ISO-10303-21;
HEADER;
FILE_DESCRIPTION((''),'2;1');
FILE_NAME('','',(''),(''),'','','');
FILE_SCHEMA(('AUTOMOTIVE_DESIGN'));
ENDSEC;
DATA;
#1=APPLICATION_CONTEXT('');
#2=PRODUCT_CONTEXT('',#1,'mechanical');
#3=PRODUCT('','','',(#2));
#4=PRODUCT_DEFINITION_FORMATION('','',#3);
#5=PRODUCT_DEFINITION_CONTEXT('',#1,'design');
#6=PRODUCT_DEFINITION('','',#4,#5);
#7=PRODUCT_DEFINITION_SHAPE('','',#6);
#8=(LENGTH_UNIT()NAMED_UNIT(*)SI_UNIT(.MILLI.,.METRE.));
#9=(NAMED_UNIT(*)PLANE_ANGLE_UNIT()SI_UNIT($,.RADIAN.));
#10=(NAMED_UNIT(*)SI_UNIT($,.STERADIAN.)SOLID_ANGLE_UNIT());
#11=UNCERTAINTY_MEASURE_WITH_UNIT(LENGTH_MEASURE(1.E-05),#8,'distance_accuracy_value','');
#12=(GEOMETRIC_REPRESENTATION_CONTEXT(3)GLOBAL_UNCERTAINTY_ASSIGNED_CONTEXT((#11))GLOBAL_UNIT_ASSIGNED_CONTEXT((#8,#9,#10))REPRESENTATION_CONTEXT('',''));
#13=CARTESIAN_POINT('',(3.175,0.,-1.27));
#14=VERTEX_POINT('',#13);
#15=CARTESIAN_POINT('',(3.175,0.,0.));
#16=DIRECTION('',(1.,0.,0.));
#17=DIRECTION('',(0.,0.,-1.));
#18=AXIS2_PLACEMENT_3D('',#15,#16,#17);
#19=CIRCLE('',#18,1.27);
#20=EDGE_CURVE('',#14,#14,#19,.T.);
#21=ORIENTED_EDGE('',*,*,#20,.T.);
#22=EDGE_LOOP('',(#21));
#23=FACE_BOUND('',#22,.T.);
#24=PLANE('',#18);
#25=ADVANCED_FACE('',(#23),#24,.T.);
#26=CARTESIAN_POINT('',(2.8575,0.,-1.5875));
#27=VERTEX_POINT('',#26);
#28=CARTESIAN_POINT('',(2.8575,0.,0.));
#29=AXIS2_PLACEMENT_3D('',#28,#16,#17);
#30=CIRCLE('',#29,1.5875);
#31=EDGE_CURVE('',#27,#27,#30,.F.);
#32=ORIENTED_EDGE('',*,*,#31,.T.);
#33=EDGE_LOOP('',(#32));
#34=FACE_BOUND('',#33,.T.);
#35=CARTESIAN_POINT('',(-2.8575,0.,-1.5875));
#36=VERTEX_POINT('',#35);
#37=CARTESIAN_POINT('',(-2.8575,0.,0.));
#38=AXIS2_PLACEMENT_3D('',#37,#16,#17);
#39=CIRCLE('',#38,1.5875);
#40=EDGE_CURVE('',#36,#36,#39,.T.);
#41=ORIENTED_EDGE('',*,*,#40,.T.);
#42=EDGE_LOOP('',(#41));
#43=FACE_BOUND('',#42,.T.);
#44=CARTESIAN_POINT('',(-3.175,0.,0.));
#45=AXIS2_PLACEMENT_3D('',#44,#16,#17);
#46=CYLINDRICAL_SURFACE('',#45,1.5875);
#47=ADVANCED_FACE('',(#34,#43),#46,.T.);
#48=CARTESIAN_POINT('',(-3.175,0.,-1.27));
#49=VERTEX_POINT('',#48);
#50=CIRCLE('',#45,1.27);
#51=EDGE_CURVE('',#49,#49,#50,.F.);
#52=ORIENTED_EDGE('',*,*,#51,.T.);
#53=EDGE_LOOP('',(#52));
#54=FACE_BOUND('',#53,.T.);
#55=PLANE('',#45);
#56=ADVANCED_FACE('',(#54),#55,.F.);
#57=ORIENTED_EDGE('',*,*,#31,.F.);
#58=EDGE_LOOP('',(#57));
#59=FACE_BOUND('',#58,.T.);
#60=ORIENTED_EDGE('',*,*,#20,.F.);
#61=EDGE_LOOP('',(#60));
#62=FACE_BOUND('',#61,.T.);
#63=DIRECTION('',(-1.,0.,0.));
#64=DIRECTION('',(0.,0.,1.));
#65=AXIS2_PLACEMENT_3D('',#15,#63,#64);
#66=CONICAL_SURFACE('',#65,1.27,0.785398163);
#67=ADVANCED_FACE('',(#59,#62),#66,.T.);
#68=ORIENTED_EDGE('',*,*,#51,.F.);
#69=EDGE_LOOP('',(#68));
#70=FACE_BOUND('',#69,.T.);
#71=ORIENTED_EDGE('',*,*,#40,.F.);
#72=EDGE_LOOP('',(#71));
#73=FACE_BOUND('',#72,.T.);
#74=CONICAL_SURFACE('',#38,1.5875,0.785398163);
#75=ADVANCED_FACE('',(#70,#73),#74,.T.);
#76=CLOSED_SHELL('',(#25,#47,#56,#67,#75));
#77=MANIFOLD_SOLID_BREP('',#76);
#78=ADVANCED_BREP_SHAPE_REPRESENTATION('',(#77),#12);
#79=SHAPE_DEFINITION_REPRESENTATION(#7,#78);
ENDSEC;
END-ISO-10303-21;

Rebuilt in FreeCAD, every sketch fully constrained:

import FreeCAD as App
import Part
import Sketcher
Q = App.Units.Quantity


def edges_at(feature, points):
    """Names of the edges that pass closest to the given points."""
    edges = feature.Shape.Edges
    near = lambda p: min(range(len(edges)), key=lambda i: edges[i].distToShape(Part.Vertex(*p))[0])
    return sorted({f"Edge{near(p) + 1}" for p in points})

doc = App.newDocument("Part")
params = doc.addObject("Spreadsheet::Sheet", "Params")
for row, (alias, value) in enumerate([
    ("sketch1_diameter", "0.125 in"),
    ("pad1_length", "0.125 in"),
    ("pad1_length2", "0.125 in"),
    ("chamfer_size", "0.0125 in"),
], start=1):
    params.set(f"A{row}", alias)
    params.set(f"B{row}", "=" + value)
    params.setAlias(f"B{row}", alias)

body = doc.addObject("PartDesign::Body", "Body")

# Sketch on YZ plane
sketch1 = doc.addObject("Sketcher::SketchObject", "Sketch")
body.addObject(sketch1)
sketch1.AttachmentSupport = (doc.YZ_Plane, [""])
sketch1.MapMode = "FlatFace"
sketch1.addGeometry(Part.Circle(App.Vector(0, 0, 0), App.Vector(0, 0, 1), 1.5875), False)
sketch1.addConstraint(Sketcher.Constraint("Coincident", 0, 3, -1, 1))
sketch1.addConstraint(Sketcher.Constraint("Diameter", 0, Q("0.125 in")))
sketch1.setExpression("Constraints[1]", "Params.sketch1_diameter")
pad1 = doc.addObject("PartDesign::Pad", "Pad")
body.addObject(pad1)
pad1.Profile = sketch1
pad1.Type = "TwoLengths"
pad1.setExpression("Length", "Params.pad1_length")
pad1.setExpression("Length2", "Params.pad1_length2")
doc.recompute()

chamfer = doc.addObject("PartDesign::Chamfer", "Chamfer")
body.addObject(chamfer)
chamfer.Base = (pad1, edges_at(pad1, [(-3.175, 0, 1.587), (3.175, 0, 1.587)]))
chamfer.setExpression("Size", "Params.chamfer_size")

doc.recompute()
